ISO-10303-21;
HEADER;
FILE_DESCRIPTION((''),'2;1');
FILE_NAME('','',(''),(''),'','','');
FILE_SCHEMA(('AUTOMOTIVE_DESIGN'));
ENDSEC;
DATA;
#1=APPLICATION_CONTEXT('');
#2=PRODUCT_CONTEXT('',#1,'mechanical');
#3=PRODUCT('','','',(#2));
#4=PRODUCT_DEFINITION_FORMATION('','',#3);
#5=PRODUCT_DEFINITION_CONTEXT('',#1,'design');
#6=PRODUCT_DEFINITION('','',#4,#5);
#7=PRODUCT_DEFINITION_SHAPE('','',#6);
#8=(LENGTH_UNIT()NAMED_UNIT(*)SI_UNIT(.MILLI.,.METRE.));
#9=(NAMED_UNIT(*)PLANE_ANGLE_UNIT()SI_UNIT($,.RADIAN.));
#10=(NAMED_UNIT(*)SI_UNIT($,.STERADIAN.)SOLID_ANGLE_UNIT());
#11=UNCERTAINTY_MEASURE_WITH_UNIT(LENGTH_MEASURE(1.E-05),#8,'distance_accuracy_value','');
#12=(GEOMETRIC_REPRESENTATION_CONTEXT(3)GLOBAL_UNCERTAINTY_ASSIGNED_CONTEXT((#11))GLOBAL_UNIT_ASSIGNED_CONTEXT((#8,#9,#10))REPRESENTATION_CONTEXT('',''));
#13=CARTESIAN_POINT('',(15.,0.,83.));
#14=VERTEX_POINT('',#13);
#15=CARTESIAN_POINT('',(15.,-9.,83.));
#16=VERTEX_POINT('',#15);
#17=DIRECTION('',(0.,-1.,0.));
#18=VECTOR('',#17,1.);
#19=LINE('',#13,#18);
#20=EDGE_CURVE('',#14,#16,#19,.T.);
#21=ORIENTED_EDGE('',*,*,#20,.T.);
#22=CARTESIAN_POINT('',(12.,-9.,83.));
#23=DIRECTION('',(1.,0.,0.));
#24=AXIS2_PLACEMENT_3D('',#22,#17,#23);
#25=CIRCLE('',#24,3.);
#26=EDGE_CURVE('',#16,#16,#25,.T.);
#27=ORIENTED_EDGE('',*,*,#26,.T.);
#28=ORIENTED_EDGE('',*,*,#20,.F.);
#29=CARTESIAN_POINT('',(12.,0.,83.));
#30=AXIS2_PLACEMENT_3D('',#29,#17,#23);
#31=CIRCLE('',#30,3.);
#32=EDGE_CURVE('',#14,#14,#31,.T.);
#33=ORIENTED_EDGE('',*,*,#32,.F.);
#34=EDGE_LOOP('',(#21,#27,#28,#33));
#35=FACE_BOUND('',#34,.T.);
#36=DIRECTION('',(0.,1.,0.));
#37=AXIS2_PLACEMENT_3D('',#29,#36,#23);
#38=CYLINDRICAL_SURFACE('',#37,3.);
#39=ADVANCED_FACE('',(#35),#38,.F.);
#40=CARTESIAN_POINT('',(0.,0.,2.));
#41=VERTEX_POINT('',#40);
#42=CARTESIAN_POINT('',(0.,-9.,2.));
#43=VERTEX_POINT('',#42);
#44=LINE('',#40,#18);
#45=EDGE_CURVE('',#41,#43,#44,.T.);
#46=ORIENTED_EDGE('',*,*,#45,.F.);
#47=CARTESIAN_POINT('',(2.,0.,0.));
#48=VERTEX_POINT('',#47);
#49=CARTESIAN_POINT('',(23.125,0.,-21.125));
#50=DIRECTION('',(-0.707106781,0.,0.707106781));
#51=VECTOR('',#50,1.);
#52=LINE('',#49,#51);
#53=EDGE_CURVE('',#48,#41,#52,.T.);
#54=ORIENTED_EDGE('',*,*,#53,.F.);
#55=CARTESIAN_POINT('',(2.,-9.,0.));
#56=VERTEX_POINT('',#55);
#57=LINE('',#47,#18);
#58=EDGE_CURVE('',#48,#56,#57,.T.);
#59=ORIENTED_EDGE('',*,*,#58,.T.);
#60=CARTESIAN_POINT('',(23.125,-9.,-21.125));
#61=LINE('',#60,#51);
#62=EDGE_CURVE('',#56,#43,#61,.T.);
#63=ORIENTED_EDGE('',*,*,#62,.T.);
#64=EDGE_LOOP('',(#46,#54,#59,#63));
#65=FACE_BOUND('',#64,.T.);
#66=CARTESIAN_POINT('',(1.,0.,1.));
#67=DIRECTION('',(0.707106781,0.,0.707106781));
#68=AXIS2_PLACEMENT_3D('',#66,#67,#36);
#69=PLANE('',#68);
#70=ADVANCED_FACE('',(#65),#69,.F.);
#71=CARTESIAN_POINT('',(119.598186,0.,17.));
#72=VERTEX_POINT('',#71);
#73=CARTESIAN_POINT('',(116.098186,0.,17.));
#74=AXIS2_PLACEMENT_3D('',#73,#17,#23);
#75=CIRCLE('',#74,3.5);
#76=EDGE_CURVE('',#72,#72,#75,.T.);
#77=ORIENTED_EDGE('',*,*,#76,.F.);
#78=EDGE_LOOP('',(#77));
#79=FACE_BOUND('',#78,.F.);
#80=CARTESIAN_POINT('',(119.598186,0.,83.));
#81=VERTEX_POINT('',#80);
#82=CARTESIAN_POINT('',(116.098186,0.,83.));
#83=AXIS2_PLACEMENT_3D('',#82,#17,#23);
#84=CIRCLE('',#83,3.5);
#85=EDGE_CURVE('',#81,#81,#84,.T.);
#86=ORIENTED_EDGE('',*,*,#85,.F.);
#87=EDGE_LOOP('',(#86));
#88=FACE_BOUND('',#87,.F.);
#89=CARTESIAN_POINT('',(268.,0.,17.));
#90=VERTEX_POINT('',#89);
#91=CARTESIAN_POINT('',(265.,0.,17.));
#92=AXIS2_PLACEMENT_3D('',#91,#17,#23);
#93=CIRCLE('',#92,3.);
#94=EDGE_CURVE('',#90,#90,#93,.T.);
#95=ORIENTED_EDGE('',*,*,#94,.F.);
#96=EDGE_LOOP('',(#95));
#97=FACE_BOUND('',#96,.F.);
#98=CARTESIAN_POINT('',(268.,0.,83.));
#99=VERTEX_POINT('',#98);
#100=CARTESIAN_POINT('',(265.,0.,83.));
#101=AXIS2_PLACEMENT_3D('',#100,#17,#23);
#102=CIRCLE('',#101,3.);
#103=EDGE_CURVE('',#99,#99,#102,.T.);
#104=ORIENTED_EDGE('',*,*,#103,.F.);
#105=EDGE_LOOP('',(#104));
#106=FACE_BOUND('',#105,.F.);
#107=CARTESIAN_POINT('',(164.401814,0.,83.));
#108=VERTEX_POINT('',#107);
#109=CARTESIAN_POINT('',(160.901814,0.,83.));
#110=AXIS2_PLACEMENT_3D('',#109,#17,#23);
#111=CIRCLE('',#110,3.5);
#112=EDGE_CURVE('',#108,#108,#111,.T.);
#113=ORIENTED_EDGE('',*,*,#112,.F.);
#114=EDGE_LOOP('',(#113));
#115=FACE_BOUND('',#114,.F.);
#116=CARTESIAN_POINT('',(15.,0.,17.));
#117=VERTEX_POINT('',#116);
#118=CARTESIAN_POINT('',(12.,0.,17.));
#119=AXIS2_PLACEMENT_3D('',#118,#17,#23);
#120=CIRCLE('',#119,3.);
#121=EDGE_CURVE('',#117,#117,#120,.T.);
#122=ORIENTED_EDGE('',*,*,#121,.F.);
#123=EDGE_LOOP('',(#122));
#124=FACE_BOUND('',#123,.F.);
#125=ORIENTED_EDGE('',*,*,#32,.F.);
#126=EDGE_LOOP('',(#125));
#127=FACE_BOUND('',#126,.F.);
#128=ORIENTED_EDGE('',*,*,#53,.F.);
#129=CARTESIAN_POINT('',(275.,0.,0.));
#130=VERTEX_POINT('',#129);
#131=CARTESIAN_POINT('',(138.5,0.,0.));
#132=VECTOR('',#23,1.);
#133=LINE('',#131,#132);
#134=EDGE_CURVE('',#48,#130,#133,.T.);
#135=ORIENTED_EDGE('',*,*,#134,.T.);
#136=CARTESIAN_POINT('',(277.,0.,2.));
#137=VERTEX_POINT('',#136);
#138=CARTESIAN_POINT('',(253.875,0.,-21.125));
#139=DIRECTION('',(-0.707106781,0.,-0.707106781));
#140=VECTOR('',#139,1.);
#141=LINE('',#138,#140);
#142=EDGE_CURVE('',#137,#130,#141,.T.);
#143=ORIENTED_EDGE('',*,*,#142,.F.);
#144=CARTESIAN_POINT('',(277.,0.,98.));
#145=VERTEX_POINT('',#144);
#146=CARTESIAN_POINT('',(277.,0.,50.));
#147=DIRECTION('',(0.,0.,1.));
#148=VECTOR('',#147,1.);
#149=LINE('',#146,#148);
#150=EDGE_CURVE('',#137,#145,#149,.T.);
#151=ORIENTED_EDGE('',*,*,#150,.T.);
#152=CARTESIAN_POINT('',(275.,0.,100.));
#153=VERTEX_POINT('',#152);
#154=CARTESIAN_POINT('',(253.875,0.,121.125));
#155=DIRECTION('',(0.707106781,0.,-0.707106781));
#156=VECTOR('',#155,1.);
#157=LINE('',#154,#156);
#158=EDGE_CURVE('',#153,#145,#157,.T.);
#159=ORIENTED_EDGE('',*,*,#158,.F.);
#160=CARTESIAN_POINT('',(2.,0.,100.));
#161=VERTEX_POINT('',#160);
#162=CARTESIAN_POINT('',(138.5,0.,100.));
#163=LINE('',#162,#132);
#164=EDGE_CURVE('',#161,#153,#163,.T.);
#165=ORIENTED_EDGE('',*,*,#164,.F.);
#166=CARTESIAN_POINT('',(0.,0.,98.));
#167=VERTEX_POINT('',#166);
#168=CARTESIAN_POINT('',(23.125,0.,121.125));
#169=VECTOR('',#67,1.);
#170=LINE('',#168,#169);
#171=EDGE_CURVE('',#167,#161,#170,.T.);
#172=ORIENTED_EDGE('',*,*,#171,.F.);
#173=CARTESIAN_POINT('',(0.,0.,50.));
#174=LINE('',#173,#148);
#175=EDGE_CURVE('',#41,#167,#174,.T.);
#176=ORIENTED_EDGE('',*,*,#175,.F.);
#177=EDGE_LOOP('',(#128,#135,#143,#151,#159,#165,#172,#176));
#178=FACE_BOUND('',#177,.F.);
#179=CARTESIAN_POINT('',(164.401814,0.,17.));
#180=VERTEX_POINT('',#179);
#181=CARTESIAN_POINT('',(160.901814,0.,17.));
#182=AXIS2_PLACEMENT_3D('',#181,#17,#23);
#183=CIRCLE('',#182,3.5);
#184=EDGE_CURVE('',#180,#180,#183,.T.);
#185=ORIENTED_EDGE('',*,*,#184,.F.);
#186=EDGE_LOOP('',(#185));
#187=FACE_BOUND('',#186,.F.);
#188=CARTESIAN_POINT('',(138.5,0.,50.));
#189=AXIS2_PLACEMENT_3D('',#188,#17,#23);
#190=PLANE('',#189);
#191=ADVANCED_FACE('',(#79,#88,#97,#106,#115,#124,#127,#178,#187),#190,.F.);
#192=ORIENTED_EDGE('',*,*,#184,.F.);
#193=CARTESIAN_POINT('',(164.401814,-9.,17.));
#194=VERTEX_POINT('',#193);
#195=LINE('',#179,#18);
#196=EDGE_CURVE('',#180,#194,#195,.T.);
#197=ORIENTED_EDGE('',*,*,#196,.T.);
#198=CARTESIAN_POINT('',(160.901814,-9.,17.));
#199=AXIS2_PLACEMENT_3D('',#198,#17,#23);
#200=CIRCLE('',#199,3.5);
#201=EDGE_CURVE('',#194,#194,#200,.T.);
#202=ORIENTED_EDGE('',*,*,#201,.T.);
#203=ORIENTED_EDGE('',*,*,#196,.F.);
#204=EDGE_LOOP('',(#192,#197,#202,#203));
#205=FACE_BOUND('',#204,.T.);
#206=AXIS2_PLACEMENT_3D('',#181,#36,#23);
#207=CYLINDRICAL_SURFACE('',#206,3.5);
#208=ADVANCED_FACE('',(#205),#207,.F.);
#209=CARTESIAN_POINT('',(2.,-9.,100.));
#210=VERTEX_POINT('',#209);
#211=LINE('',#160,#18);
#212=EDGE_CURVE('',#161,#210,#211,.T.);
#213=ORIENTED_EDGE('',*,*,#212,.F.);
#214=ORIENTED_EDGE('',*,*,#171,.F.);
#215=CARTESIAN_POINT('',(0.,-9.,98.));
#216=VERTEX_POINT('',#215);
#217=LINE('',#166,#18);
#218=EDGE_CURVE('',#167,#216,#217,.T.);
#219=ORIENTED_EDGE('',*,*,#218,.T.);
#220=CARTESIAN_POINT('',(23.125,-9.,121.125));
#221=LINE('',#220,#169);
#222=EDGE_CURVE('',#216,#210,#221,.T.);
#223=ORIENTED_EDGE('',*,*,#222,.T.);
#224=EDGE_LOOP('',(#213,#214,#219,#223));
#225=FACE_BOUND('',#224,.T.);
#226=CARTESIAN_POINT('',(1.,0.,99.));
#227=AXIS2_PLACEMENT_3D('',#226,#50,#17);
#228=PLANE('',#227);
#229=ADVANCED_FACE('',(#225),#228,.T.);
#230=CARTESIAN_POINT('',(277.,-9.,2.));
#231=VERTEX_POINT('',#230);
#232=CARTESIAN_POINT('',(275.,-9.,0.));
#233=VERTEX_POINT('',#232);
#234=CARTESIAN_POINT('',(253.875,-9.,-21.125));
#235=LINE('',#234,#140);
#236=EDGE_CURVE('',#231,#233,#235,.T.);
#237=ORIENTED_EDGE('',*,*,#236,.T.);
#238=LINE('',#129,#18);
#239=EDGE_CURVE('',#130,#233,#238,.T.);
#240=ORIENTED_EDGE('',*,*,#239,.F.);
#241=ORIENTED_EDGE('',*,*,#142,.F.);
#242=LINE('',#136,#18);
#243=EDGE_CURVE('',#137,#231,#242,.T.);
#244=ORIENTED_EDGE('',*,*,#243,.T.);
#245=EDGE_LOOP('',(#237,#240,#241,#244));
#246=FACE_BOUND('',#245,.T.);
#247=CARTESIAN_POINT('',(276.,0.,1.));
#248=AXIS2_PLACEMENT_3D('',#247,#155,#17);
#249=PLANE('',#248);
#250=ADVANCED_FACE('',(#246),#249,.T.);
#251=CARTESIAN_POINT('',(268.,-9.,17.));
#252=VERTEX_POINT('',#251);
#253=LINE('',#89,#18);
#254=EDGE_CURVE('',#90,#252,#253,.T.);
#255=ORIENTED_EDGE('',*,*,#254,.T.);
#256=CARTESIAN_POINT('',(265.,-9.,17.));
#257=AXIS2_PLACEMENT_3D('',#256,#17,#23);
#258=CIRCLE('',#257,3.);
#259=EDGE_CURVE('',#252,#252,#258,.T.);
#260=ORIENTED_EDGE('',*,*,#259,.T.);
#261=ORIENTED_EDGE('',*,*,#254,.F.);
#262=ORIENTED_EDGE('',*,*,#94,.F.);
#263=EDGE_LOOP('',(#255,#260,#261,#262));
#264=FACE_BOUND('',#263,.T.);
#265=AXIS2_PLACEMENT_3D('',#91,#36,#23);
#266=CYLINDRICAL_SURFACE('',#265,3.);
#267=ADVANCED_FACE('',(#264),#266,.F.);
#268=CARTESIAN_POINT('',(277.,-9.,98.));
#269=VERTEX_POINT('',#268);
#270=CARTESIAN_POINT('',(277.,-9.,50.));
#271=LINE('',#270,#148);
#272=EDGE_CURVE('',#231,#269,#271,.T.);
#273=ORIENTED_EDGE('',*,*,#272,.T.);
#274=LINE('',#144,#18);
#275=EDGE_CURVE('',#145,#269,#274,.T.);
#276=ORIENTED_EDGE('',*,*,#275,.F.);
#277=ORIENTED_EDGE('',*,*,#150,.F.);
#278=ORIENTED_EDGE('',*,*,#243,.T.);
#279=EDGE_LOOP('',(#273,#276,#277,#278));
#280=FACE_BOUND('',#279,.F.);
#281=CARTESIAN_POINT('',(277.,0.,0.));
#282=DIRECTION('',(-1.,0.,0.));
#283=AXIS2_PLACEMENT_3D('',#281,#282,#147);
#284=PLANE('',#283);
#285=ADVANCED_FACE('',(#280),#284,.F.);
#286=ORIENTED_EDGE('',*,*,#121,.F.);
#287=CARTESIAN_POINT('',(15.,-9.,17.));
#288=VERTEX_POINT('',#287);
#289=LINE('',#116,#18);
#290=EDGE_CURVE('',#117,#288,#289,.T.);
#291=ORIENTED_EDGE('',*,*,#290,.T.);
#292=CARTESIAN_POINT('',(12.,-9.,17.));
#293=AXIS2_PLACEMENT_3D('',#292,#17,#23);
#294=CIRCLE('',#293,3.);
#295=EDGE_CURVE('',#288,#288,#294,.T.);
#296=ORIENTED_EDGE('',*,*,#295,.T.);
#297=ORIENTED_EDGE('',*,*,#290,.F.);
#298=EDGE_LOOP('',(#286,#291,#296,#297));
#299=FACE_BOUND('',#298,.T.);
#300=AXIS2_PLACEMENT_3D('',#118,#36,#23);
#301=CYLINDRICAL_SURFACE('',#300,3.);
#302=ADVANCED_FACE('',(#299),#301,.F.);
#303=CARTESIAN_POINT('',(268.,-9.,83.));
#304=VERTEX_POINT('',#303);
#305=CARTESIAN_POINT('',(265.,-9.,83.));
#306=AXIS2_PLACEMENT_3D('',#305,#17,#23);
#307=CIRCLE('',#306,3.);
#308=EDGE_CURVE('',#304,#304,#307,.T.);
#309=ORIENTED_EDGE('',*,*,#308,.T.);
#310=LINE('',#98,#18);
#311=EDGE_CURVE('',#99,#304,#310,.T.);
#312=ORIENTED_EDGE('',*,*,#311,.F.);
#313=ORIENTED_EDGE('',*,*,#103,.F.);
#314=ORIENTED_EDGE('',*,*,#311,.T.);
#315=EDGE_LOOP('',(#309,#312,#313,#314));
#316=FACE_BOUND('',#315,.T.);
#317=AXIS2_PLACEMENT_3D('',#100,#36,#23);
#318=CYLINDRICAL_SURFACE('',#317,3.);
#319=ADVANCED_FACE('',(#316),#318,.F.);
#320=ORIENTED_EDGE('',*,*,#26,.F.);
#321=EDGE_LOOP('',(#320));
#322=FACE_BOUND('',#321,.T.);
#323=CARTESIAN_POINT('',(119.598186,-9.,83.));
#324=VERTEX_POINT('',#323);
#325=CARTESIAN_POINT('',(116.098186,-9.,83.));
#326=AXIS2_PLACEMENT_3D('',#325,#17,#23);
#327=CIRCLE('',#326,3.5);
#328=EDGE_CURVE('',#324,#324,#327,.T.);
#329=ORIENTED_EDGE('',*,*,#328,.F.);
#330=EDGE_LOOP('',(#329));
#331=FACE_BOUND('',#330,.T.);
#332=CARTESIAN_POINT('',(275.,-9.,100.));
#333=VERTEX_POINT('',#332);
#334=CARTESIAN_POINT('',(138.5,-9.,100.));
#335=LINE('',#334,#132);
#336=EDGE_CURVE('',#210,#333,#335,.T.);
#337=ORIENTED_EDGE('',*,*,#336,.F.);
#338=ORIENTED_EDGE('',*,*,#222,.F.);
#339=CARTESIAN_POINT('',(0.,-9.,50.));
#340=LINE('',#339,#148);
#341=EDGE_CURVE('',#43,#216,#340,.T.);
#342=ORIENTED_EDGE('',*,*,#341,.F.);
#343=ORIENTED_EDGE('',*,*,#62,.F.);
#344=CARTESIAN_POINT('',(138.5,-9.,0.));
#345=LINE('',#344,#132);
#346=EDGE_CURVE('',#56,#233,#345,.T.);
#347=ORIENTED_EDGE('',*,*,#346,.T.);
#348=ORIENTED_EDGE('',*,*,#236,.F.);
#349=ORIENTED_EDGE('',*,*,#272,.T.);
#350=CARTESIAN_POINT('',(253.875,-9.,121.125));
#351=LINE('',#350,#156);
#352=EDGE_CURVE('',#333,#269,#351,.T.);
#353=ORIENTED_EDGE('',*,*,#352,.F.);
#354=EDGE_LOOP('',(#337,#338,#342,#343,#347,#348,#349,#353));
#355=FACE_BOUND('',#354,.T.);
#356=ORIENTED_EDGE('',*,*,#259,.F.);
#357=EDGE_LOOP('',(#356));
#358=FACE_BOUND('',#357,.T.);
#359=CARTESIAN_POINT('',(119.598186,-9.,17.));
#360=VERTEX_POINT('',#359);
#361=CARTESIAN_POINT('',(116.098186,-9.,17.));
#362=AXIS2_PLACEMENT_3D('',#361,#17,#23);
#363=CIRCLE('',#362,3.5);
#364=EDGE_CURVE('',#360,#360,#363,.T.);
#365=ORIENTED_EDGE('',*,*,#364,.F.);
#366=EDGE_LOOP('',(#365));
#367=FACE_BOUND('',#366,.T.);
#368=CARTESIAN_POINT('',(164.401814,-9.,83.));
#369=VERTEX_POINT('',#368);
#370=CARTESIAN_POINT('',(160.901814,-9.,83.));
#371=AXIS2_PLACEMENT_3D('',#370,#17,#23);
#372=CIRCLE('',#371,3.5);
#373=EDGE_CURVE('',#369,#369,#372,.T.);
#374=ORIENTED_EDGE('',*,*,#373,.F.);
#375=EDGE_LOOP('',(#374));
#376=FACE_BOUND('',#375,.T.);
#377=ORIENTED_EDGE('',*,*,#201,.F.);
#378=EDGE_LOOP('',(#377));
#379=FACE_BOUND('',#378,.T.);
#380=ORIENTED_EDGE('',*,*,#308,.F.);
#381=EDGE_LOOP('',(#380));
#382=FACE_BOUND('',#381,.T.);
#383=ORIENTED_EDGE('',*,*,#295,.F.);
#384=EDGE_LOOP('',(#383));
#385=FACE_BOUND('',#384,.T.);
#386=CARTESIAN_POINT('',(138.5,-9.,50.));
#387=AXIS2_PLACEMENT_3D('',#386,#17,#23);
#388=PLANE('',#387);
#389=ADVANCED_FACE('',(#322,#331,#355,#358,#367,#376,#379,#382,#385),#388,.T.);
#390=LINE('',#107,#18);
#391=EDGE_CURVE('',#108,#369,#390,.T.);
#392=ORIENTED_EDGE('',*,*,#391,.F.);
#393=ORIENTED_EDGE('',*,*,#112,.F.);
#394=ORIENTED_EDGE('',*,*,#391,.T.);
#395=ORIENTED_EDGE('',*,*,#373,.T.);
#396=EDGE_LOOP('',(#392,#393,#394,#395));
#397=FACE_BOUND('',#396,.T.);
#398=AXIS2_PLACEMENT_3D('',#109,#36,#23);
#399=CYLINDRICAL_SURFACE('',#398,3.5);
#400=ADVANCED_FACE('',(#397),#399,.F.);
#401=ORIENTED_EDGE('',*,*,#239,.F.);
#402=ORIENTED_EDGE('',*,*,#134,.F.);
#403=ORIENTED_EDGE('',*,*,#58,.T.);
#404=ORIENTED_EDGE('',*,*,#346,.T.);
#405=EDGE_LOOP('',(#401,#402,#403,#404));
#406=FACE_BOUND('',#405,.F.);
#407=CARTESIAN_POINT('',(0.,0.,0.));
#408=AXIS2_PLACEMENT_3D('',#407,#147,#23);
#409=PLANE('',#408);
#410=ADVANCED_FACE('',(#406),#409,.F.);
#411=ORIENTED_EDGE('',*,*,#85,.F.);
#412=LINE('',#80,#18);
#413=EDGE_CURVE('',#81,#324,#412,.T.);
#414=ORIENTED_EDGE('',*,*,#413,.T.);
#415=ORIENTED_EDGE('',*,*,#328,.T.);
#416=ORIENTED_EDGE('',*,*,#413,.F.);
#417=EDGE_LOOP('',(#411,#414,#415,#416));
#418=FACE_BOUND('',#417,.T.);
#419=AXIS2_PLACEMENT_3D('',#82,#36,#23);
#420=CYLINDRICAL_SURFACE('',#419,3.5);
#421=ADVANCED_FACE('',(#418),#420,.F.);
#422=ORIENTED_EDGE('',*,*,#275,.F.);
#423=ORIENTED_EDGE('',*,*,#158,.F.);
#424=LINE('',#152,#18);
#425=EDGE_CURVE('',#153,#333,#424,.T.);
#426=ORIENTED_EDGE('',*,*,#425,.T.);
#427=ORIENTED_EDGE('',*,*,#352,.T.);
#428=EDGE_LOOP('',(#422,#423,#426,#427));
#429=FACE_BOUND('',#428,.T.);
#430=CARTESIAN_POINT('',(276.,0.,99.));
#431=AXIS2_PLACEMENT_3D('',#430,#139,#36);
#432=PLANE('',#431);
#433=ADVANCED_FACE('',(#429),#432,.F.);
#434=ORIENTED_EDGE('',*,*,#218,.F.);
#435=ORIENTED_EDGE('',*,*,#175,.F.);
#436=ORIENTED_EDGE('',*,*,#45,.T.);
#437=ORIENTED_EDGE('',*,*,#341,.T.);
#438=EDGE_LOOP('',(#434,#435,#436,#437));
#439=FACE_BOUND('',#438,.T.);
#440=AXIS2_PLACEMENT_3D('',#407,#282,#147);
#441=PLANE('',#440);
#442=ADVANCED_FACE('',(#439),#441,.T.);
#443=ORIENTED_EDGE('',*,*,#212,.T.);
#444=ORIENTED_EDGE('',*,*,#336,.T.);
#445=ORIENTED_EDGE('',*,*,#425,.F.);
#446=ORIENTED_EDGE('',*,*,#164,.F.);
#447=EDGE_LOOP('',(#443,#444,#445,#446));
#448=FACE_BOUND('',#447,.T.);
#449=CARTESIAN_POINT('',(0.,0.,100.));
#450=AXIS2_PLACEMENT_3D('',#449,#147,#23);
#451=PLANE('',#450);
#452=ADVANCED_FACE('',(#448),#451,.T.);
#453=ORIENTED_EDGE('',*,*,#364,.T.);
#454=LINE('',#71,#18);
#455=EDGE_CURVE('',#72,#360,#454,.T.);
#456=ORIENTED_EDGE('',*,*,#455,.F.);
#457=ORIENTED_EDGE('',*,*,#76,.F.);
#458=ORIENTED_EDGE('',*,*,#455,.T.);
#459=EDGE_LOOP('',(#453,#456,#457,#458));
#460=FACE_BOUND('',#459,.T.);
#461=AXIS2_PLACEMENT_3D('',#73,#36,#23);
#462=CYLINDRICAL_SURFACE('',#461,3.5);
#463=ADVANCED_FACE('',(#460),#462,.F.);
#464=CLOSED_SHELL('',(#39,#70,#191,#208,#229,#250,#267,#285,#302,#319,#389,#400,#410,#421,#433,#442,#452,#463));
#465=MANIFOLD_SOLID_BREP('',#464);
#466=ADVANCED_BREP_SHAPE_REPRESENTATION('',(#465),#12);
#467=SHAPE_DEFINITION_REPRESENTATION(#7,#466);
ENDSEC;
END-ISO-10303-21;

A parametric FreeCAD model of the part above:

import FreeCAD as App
import Part
import Sketcher


def edges_at(feature, points):
    """Names of the edges that pass closest to the given points."""
    edges = feature.Shape.Edges
    near = lambda p: min(range(len(edges)), key=lambda i: edges[i].distToShape(Part.Vertex(*p))[0])
    return sorted({f"Edge{near(p) + 1}" for p in points})

doc = App.newDocument("Part")
body = doc.addObject("PartDesign::Body", "Body")

# Sketch on XZ plane
sketch1 = body.newObject("Sketcher::SketchObject", "Sketch")
sketch1.AttachmentSupport = (doc.getObject("XZ_Plane"), [""])
sketch1.MapMode = "FlatFace"
sketch1.addGeometry(Part.LineSegment(App.Vector(0, 100, 0), App.Vector(0, 0, 0)), False)
sketch1.addGeometry(Part.LineSegment(App.Vector(0, 0, 0), App.Vector(277, 0, 0)), False)
sketch1.addGeometry(Part.LineSegment(App.Vector(277, 0, 0), App.Vector(277, 100, 0)), False)
sketch1.addGeometry(Part.LineSegment(App.Vector(277, 100, 0), App.Vector(0, 100, 0)), False)
sketch1.addGeometry(Part.Circle(App.Vector(12, 17, 0), App.Vector(0, 0, 1), 3), False)
sketch1.addGeometry(Part.Circle(App.Vector(116.1, 17, 0), App.Vector(0, 0, 1), 3.5), False)
sketch1.addGeometry(Part.Circle(App.Vector(160.9, 17, 0), App.Vector(0, 0, 1), 3.5), False)
sketch1.addGeometry(Part.Circle(App.Vector(265, 17, 0), App.Vector(0, 0, 1), 3), False)
sketch1.addGeometry(Part.Circle(App.Vector(12, 83, 0), App.Vector(0, 0, 1), 3), False)
sketch1.addGeometry(Part.Circle(App.Vector(116.1, 83, 0), App.Vector(0, 0, 1), 3.5), False)
sketch1.addGeometry(Part.Circle(App.Vector(160.9, 83, 0), App.Vector(0, 0, 1), 3.5), False)
sketch1.addGeometry(Part.Circle(App.Vector(265, 83, 0), App.Vector(0, 0, 1), 3), False)
sketch1.addConstraint(Sketcher.Constraint("Coincident", 0, 2, 1, 1))
sketch1.addConstraint(Sketcher.Constraint("Coincident", 1, 2, 2, 1))
sketch1.addConstraint(Sketcher.Constraint("Coincident", 2, 2, 3, 1))
sketch1.addConstraint(Sketcher.Constraint("Coincident", 3, 2, 0, 1))
sketch1.addConstraint(Sketcher.Constraint("Vertical", 0))
sketch1.addConstraint(Sketcher.Constraint("Horizontal", 1))
sketch1.addConstraint(Sketcher.Constraint("Vertical", 2))
sketch1.addConstraint(Sketcher.Constraint("Horizontal", 3))
sketch1.addConstraint(Sketcher.Constraint("Coincident", 0, 2, -1, 1))
sketch1.addConstraint(Sketcher.Constraint("Equal", 5, 6))
sketch1.addConstraint(Sketcher.Constraint("Equal", 4, 7))
sketch1.addConstraint(Sketcher.Constraint("Equal", 7, 8))
sketch1.addConstraint(Sketcher.Constraint("Equal", 6, 9))
sketch1.addConstraint(Sketcher.Constraint("Equal", 9, 10))
sketch1.addConstraint(Sketcher.Constraint("Equal", 8, 11))
sketch1.addConstraint(Sketcher.Constraint("Horizontal", 4, 3, 5, 3))
sketch1.addConstraint(Sketcher.Constraint("Horizontal", 5, 3, 6, 3))
sketch1.addConstraint(Sketcher.Constraint("Horizontal", 6, 3, 7, 3))
sketch1.addConstraint(Sketcher.Constraint("Horizontal", 8, 3, 9, 3))
sketch1.addConstraint(Sketcher.Constraint("Horizontal", 9, 3, 10, 3))
sketch1.addConstraint(Sketcher.Constraint("Horizontal", 10, 3, 11, 3))
sketch1.addConstraint(Sketcher.Constraint("Vertical", 4, 3, 8, 3))
sketch1.addConstraint(Sketcher.Constraint("Vertical", 5, 3, 9, 3))
sketch1.addConstraint(Sketcher.Constraint("Vertical", 6, 3, 10, 3))
sketch1.addConstraint(Sketcher.Constraint("Vertical", 7, 3, 11, 3))
sketch1.addConstraint(Sketcher.Constraint("Diameter", 4, 6.0))
sketch1.addConstraint(Sketcher.Constraint("Diameter", 5, 7.0))
sketch1.addConstraint(Sketcher.Constraint("DistanceX", 1, 1, 1, 2, 277.0))
sketch1.addConstraint(Sketcher.Constraint("DistanceY", 0, 2, 0, 1, 100.0))
sketch1.addConstraint(Sketcher.Constraint("DistanceX", -1, 1, 4, 3, 12.0))
sketch1.addConstraint(Sketcher.Constraint("DistanceY", -1, 1, 4, 3, 17.0))
sketch1.addConstraint(Sketcher.Constraint("DistanceX", -1, 1, 7, 3, 265.0))
sketch1.addConstraint(Sketcher.Constraint("DistanceY", -1, 1, 8, 3, 83.0))
sketch1.addConstraint(Sketcher.Constraint("DistanceX", 5, 3, 6, 3, 44.803628))
sketch1.addConstraint(Sketcher.Constraint("DistanceX", -1, 1, 5, 3, 116.098186))
pad1 = body.newObject("PartDesign::Pad", "Pad")
pad1.Profile = sketch1
pad1.Length = 9
doc.recompute()

chamfer = body.newObject("PartDesign::Chamfer", "Chamfer")
chamfer.Base = (pad1, edges_at(pad1, [(277, -4.5, 100)]))
chamfer.Size = 2
doc.recompute()

chamfer2 = body.newObject("PartDesign::Chamfer", "Chamfer001")
chamfer2.Base = (chamfer, edges_at(chamfer, [(277, -4.5, 0)]))
chamfer2.Size = 2
doc.recompute()

chamfer3 = body.newObject("PartDesign::Chamfer", "Chamfer002")
chamfer3.Base = (chamfer2, edges_at(chamfer2, [(0, -4.5, 0)]))
chamfer3.Size = 2
doc.recompute()

chamfer4 = body.newObject("PartDesign::Chamfer", "Chamfer003")
chamfer4.Base = (chamfer3, edges_at(chamfer3, [(0, -4.5, 100)]))
chamfer4.Size = 2

doc.recompute()
